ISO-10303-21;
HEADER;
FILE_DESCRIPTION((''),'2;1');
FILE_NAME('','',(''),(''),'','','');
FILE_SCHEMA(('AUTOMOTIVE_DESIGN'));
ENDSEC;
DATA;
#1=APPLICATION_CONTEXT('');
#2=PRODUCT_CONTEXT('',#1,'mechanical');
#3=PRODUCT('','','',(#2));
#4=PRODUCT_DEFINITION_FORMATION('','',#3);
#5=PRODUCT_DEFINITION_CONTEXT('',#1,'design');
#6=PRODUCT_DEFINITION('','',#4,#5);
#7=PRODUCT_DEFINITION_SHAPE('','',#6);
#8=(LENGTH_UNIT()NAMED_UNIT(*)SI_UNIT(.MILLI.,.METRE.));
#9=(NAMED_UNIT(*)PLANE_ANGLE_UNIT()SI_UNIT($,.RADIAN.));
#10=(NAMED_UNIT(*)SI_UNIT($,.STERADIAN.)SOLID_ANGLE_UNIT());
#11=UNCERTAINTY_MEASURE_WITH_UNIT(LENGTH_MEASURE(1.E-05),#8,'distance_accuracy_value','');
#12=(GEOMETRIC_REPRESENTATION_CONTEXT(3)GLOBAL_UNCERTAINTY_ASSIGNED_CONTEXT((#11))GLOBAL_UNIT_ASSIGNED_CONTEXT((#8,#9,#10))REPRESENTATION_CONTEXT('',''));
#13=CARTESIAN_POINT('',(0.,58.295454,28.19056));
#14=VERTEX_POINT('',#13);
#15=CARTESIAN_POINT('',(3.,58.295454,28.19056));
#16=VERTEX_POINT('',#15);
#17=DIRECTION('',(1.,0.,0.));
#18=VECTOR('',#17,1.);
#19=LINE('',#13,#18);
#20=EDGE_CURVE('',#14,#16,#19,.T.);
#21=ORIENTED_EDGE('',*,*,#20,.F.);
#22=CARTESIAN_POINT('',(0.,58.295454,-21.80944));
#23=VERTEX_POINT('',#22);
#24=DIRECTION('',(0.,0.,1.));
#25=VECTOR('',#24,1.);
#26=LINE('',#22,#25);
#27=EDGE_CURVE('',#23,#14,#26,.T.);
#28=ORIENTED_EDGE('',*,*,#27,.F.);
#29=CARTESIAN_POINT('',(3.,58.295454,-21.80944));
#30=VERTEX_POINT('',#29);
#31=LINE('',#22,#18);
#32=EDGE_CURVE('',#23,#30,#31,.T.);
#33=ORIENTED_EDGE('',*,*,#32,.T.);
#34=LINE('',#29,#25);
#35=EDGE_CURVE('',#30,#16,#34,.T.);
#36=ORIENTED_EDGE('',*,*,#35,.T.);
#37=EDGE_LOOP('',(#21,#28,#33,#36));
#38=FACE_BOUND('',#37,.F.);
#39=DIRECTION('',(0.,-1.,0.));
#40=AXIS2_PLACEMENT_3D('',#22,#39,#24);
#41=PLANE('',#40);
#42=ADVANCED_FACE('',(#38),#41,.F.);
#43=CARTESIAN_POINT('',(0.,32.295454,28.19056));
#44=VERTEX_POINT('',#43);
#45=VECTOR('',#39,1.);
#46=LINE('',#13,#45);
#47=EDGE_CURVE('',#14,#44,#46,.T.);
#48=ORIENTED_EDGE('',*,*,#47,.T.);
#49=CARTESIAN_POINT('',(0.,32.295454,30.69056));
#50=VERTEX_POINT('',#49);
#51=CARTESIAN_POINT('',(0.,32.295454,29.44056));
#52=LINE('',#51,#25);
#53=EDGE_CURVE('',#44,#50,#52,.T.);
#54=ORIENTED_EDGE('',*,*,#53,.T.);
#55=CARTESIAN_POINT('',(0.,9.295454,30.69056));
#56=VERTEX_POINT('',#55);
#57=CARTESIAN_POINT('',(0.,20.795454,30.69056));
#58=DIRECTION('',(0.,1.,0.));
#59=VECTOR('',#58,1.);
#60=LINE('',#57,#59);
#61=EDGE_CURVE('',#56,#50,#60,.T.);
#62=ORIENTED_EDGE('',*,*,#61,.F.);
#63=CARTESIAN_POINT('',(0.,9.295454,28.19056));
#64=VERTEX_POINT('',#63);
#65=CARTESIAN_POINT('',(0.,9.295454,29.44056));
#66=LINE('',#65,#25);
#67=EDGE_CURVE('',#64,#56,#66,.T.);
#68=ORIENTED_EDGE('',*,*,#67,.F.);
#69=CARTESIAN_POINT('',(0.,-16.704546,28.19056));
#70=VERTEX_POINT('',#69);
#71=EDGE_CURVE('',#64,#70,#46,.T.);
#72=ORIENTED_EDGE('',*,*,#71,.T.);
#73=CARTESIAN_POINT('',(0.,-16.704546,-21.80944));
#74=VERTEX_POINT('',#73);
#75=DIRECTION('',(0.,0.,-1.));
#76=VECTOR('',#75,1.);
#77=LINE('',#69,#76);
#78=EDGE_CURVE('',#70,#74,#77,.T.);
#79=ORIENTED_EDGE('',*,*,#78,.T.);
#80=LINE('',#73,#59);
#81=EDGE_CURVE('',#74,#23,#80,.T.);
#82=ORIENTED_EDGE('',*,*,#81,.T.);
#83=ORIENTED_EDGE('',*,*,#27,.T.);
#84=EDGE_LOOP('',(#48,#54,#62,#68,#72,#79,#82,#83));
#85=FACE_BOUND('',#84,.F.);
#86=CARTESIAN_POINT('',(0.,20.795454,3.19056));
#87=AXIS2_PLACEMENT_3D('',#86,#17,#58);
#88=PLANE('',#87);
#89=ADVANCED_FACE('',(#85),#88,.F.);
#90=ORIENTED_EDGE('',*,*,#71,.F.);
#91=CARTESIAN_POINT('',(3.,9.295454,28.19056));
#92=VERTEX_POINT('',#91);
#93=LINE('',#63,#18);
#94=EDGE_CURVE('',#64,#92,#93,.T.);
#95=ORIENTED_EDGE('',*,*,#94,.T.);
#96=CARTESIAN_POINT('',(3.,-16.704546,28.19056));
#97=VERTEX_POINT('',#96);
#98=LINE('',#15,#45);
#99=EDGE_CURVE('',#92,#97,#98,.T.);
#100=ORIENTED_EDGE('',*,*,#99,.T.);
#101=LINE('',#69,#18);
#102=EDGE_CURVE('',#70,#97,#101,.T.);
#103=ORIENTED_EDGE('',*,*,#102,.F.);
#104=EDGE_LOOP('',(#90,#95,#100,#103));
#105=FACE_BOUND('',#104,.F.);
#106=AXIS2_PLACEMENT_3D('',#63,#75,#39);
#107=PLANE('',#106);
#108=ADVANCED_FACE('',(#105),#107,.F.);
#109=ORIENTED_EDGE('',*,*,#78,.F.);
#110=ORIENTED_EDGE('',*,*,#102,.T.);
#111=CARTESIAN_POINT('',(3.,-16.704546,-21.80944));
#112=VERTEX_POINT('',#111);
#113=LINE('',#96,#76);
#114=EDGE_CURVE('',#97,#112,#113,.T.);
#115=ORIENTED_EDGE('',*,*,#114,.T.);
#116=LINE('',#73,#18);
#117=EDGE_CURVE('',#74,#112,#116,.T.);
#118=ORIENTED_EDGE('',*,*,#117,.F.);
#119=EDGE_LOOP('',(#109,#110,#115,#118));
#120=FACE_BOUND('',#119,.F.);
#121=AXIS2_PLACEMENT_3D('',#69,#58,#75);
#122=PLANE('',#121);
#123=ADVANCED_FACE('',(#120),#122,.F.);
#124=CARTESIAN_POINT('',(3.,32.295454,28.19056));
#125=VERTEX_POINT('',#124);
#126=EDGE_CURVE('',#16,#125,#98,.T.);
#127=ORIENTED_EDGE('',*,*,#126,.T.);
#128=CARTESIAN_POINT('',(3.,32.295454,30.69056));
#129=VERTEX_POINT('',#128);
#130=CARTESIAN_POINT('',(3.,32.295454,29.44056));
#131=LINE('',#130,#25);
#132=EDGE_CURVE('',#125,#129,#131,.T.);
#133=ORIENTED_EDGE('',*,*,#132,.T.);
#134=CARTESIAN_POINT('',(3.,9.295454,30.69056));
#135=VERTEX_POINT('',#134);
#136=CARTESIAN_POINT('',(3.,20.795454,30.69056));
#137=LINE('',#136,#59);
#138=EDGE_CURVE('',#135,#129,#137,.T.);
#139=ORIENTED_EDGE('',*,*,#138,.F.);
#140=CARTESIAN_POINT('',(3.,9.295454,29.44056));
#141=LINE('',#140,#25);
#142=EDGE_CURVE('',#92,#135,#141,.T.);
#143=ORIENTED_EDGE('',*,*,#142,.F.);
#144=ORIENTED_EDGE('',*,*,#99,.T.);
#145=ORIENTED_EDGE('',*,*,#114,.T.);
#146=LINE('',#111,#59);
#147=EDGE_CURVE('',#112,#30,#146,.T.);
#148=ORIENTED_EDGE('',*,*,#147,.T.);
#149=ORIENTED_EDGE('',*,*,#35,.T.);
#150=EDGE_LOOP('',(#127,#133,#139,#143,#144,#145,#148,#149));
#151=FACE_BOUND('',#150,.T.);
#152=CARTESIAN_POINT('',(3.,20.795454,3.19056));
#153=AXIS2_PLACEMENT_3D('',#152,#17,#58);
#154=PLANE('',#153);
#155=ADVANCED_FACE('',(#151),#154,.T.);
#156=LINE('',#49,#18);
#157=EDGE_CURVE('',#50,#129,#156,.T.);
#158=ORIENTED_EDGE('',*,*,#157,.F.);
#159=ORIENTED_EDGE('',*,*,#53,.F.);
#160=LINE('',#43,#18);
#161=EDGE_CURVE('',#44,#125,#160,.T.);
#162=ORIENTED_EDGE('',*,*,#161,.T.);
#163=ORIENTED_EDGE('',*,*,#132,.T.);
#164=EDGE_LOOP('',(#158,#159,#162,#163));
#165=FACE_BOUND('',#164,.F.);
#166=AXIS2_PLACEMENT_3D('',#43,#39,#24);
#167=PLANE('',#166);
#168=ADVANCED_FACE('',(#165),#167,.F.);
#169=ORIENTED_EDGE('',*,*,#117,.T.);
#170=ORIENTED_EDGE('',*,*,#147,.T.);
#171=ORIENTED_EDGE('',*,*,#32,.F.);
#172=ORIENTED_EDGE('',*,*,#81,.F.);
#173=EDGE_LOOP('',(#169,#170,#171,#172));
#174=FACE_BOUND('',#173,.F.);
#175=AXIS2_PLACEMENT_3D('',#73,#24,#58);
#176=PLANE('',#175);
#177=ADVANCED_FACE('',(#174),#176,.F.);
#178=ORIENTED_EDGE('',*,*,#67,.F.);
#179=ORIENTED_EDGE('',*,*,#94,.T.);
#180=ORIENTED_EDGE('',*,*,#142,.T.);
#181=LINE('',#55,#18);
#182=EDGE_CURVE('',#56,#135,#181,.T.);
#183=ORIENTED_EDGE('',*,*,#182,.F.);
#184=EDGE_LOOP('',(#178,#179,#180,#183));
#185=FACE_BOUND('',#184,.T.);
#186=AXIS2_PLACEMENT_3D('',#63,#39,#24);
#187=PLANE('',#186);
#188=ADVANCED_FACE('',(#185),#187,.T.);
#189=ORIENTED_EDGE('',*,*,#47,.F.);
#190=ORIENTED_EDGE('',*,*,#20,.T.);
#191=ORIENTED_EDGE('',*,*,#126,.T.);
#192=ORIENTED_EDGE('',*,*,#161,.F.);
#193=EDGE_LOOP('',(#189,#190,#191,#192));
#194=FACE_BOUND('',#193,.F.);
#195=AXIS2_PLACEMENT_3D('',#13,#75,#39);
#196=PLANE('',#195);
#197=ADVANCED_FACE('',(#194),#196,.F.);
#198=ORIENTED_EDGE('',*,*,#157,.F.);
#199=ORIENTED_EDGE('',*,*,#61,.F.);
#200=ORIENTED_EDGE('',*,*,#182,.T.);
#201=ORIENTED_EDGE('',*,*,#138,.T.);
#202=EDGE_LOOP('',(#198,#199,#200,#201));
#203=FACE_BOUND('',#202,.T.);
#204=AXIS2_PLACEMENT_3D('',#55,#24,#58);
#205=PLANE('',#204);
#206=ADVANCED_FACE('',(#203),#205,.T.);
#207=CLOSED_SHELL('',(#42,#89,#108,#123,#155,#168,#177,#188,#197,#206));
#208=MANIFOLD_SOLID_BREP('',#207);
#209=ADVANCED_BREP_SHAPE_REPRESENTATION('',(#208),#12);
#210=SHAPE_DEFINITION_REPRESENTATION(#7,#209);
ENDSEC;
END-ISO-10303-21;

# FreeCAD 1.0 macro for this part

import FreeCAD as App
import Part
import Sketcher

V = App.Vector


def add_polygon(sketch, points):
    """Adds a closed chain of lines whose ends are joined by coincident constraints."""
    first, n = sketch.GeometryCount, len(points)
    for a, b in zip(points, points[1:] + points[:1]):
        sketch.addGeometry(Part.LineSegment(App.Vector(*a, 0), App.Vector(*b, 0)), False)
    for i in range(n):
        sketch.addConstraint(Sketcher.Constraint("Coincident", first + i, 2, first + (i + 1) % n, 1))

doc = App.newDocument("Part")
body = doc.addObject("PartDesign::Body", "Body")

# Sketch on YZ plane
sketch1 = body.newObject("Sketcher::SketchObject", "Sketch")
sketch1.AttachmentSupport = (doc.getObject("YZ_Plane"), [""])
sketch1.MapMode = "FlatFace"
add_polygon(sketch1, [(-16.7, 28.2), (-16.7, -21.8), (58.3, -21.8), (58.3, 28.2), (32.3, 28.2), (32.3, 30.7), (9.3, 30.7), (9.3, 28.2)])  # lines 0-7
sketch1.addConstraint([
    Sketcher.Constraint("Vertical", 0),
    Sketcher.Constraint("Horizontal", 1),
    Sketcher.Constraint("Vertical", 2),
    Sketcher.Constraint("Horizontal", 3),
    Sketcher.Constraint("Vertical", 4),
    Sketcher.Constraint("Horizontal", 5),
    Sketcher.Constraint("Vertical", 6),
    Sketcher.Constraint("Horizontal", 7),
    Sketcher.Constraint("Horizontal", 3, 2, 6, 2),
    Sketcher.Constraint("Equal", 3, 7),
    Sketcher.Constraint("DistanceX", 1, 1, 1, 2, 75.0),
    Sketcher.Constraint("DistanceX", 3, 2, 3, 1, 26.0),
    Sketcher.Constraint("DistanceY", 0, 2, 0, 1, 50.0),
    Sketcher.Constraint("DistanceY", 4, 1, 4, 2, 2.5),
    Sketcher.Constraint("DistanceY", 0, 2, -1, 1, 21.80944),
    Sketcher.Constraint("DistanceX", 0, 2, -1, 1, 16.704546),
])
pad1 = body.newObject("PartDesign::Pad", "Pad")
pad1.Profile = sketch1
pad1.Length = 3

doc.recompute()
